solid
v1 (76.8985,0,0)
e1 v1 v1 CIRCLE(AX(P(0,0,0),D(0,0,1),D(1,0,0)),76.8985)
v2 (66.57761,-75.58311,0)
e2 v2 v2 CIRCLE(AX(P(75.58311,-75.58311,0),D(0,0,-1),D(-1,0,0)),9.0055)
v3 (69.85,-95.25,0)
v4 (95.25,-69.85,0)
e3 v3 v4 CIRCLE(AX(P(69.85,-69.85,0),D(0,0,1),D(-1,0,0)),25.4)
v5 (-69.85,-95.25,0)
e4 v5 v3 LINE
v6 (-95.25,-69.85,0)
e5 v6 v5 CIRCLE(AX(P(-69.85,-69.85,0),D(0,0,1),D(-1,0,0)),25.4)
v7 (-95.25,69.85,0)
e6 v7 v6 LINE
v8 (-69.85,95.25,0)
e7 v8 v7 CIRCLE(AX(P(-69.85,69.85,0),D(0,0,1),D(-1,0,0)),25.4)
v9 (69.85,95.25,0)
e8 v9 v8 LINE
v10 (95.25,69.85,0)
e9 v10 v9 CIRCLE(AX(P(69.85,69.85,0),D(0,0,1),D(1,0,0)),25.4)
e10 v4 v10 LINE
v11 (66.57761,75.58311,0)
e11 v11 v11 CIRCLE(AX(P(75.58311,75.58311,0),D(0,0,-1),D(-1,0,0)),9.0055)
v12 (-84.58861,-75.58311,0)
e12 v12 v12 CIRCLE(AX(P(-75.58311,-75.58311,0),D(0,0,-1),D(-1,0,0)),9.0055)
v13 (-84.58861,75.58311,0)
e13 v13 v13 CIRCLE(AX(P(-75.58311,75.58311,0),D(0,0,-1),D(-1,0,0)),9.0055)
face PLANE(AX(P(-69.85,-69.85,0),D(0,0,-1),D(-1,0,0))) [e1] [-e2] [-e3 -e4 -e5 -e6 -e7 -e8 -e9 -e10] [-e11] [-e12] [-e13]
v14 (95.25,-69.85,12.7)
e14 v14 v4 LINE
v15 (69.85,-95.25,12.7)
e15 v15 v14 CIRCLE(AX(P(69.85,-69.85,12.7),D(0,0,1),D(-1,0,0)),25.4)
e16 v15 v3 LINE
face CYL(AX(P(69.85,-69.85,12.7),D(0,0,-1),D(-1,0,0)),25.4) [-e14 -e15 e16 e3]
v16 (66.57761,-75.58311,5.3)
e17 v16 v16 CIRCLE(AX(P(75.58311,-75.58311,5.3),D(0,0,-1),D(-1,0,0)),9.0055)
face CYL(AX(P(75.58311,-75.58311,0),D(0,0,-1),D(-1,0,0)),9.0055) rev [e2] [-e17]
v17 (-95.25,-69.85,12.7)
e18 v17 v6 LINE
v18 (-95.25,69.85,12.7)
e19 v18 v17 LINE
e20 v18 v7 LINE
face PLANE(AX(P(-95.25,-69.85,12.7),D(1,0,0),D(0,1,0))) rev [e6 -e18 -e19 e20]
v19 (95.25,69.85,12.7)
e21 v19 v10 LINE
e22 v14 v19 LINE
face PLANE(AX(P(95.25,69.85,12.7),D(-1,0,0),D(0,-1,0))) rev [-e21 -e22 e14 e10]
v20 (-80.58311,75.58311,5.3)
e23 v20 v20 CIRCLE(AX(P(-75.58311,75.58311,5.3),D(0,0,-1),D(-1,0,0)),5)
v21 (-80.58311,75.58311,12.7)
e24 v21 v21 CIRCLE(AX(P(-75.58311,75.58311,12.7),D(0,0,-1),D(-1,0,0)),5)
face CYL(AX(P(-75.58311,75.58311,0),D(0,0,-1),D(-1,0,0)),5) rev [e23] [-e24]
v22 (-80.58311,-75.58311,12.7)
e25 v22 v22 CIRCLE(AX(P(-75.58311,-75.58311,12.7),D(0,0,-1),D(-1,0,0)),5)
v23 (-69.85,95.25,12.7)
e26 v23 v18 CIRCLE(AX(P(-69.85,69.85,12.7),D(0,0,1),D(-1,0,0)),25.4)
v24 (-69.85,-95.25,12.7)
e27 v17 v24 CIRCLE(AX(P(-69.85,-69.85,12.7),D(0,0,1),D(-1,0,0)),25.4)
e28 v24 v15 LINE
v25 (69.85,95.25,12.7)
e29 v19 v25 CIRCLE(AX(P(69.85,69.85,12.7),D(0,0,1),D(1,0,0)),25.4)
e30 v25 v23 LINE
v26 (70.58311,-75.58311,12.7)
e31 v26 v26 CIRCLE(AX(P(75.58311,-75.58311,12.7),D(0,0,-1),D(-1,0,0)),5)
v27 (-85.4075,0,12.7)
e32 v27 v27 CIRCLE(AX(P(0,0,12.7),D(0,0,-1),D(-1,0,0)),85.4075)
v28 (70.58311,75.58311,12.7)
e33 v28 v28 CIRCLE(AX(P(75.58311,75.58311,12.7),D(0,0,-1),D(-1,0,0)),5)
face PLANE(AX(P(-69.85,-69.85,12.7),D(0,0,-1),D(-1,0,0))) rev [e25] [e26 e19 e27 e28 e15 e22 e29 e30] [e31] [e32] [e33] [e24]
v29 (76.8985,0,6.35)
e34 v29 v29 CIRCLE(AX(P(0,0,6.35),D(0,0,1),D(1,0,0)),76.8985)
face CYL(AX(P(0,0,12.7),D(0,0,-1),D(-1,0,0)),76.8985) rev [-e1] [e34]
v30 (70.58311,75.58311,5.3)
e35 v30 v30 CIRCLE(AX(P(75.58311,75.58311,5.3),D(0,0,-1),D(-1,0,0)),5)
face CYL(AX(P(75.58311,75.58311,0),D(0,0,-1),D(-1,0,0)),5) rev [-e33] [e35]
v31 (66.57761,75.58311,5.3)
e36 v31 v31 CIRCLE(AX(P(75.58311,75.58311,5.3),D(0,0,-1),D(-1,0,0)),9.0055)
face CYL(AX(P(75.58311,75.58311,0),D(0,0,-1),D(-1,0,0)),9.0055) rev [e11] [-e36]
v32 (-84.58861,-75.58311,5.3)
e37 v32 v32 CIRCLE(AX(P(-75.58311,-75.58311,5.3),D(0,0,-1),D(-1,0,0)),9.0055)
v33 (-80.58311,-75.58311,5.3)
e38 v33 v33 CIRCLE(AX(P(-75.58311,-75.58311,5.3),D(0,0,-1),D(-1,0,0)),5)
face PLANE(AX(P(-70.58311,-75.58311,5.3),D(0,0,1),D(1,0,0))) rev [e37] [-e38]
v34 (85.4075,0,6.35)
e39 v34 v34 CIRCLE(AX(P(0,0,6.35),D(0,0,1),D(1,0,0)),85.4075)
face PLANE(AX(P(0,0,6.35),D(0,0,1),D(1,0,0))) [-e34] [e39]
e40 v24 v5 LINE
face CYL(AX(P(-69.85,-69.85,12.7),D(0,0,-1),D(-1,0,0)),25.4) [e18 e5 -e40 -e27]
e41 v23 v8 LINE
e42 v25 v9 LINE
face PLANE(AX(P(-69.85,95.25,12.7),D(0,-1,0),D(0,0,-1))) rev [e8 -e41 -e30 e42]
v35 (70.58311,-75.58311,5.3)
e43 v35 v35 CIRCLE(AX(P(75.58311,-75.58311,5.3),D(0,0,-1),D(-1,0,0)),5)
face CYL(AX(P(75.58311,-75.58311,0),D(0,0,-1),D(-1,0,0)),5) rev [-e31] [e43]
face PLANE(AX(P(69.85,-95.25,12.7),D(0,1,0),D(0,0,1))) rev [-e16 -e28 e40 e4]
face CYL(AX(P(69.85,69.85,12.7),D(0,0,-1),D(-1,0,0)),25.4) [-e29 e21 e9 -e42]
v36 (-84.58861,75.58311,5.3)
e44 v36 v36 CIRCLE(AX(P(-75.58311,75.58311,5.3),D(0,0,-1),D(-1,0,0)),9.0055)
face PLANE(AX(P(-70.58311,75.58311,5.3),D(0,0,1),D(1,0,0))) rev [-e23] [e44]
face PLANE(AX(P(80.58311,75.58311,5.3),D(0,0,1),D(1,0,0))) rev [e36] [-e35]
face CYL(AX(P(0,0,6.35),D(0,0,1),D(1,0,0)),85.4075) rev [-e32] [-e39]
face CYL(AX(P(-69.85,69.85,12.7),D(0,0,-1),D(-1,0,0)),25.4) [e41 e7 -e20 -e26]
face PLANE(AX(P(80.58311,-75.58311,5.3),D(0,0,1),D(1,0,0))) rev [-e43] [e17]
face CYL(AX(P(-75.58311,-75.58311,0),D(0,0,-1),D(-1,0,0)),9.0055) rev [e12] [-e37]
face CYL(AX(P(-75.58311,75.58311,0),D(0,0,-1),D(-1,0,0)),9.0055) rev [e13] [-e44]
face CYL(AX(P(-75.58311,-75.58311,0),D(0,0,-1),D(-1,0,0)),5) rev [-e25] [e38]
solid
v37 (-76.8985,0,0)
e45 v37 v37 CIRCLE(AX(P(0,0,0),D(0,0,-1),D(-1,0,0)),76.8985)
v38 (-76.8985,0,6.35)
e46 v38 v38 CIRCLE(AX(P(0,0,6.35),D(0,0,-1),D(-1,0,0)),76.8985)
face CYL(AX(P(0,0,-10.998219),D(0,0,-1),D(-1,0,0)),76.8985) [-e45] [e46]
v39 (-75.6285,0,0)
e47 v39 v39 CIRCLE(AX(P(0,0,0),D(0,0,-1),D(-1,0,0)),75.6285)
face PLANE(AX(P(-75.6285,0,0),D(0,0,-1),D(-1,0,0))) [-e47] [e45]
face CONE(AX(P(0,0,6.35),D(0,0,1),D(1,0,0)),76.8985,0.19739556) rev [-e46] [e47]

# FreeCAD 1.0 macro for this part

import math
import FreeCAD as App
import Part
import Sketcher
from FreeCAD import Vector
Q = App.Units.Quantity

doc = App.newDocument("Part")
body = doc.addObject("PartDesign::Body", "Body")

# Sketch on XY plane
sketch1 = body.newObject("Sketcher::SketchObject", "Sketch")
sketch1.AttachmentSupport = (doc.getObject("XY_Plane"), [""])
sketch1.MapMode = "FlatFace"
sketch1.addGeometry(Part.LineSegment(Vector(95.25, -69.85, 0), Vector(95.25, 69.85, 0)), False)
sketch1.addGeometry(Part.ArcOfCircle(Part.Circle(Vector(69.85, 69.85, 0), Vector(0, 0, 1), 25.4), math.radians(0), math.radians(90)), False)
sketch1.addGeometry(Part.LineSegment(Vector(69.85, 95.25, 0), Vector(-69.85, 95.25, 0)), False)
sketch1.addGeometry(Part.ArcOfCircle(Part.Circle(Vector(-69.85, 69.85, 0), Vector(0, 0, 1), 25.4), math.radians(90), math.radians(180)), False)
sketch1.addGeometry(Part.LineSegment(Vector(-95.25, 69.85, 0), Vector(-95.25, -69.85, 0)), False)
sketch1.addGeometry(Part.ArcOfCircle(Part.Circle(Vector(-69.85, -69.85, 0), Vector(0, 0, 1), 25.4), math.radians(180), math.radians(270)), False)
sketch1.addGeometry(Part.LineSegment(Vector(-69.85, -95.25, 0), Vector(69.85, -95.25, 0)), False)
sketch1.addGeometry(Part.ArcOfCircle(Part.Circle(Vector(69.85, -69.85, 0), Vector(0, 0, 1), 25.4), math.radians(-90), math.radians(0)), False)
sketch1.addGeometry(Part.Circle(Vector(0, 0, 0), Vector(0, 0, 1), 76.8985), False)
sketch1.addConstraint(Sketcher.Constraint("Tangent", 0, 2, 1, 1))
sketch1.addConstraint(Sketcher.Constraint("Tangent", 1, 2, 2, 1))
sketch1.addConstraint(Sketcher.Constraint("Tangent", 2, 2, 3, 1))
sketch1.addConstraint(Sketcher.Constraint("Tangent", 3, 2, 4, 1))
sketch1.addConstraint(Sketcher.Constraint("Tangent", 4, 2, 5, 1))
sketch1.addConstraint(Sketcher.Constraint("Tangent", 5, 2, 6, 1))
sketch1.addConstraint(Sketcher.Constraint("Tangent", 6, 2, 7, 1))
sketch1.addConstraint(Sketcher.Constraint("Tangent", 7, 2, 0, 1))
sketch1.addConstraint(Sketcher.Constraint("Vertical", 0))
sketch1.addConstraint(Sketcher.Constraint("Horizontal", 2))
sketch1.addConstraint(Sketcher.Constraint("Vertical", 4))
sketch1.addConstraint(Sketcher.Constraint("Horizontal", 6))
sketch1.addConstraint(Sketcher.Constraint("Coincident", 8, 3, -1, 1))
sketch1.addConstraint(Sketcher.Constraint("Equal", 1, 3))
sketch1.addConstraint(Sketcher.Constraint("Equal", 3, 5))
sketch1.addConstraint(Sketcher.Constraint("Equal", 5, 7))
sketch1.addConstraint(Sketcher.Constraint("Symmetric", 1, 3, 5, 3, -1, 1))
sketch1.addConstraint(Sketcher.Constraint("Equal", 6, 0))
sketch1.addConstraint(Sketcher.Constraint("Radius", 1, Q("1 in")))
sketch1.addConstraint(Sketcher.Constraint("Diameter", 8, Q("6.055 in")))
sketch1.addConstraint(Sketcher.Constraint("DistanceX", 2, 2, 2, 1, Q("5.5 in")))
pad1 = body.newObject("PartDesign::Pad", "Pad")
pad1.Profile = sketch1
pad1.Length = Q("0.5 in")

# Sketch on XY plane
sketch2 = body.newObject("Sketcher::SketchObject", "Sketch001")
sketch2.AttachmentSupport = (doc.getObject("XY_Plane"), [""])
sketch2.MapMode = "FlatFace"
sketch2.AttachmentOffset = App.Placement(Vector(0, 0, 1 * 25.4), App.Rotation())
sketch2.addGeometry(Part.Circle(Vector(0, 0, 0), Vector(0, 0, 1), 85.4075), False)
sketch2.addGeometry(Part.Circle(Vector(0, 0, 0), Vector(0, 0, 1), 76.2), False)
sketch2.addConstraint(Sketcher.Constraint("Coincident", 0, 3, -1, 1))
sketch2.addConstraint(Sketcher.Constraint("Coincident", 1, 3, -1, 1))
sketch2.addConstraint(Sketcher.Constraint("Diameter", 1, Q("6 in")))
sketch2.addConstraint(Sketcher.Constraint("Diameter", 0, Q("6.725 in")))
pocket1 = body.newObject("PartDesign::Pocket", "Pocket")
pocket1.Profile = sketch2
pocket1.Length = Q("0.75 in")

# Sketch on YZ plane
sketch3 = body.newObject("Sketcher::SketchObject", "Sketch002")
sketch3.AttachmentSupport = (doc.getObject("YZ_Plane"), [""])
sketch3.MapMode = "FlatFace"
sketch3.AttachmentOffset = App.Placement(Vector(0, 0, -75.58311), App.Rotation())
sketch3.addGeometry(Part.LineSegment(Vector(-75.58311, 12.7, 0), Vector(-75.58311, 0, 0)), False)
sketch3.addGeometry(Part.LineSegment(Vector(-75.58311, 0, 0), Vector(-66.57761, 0, 0)), False)
sketch3.addGeometry(Part.LineSegment(Vector(-66.57761, 0, 0), Vector(-66.57761, 5.3, 0)), False)
sketch3.addGeometry(Part.LineSegment(Vector(-66.57761, 5.3, 0), Vector(-70.58311, 5.3, 0)), False)
sketch3.addGeometry(Part.LineSegment(Vector(-70.58311, 5.3, 0), Vector(-70.58311, 12.7, 0)), False)
sketch3.addGeometry(Part.LineSegment(Vector(-70.58311, 12.7, 0), Vector(-75.58311, 12.7, 0)), False)
sketch3.addGeometry(Part.LineSegment(Vector(-75.58311, 0, 0), Vector(-75.58311, 12.7, 0)), True)  # axis
sketch3.addConstraint(Sketcher.Constraint("Coincident", 0, 2, 1, 1))
sketch3.addConstraint(Sketcher.Constraint("Coincident", 1, 2, 2, 1))
sketch3.addConstraint(Sketcher.Constraint("Coincident", 2, 2, 3, 1))
sketch3.addConstraint(Sketcher.Constraint("Coincident", 3, 2, 4, 1))
sketch3.addConstraint(Sketcher.Constraint("Coincident", 4, 2, 5, 1))
sketch3.addConstraint(Sketcher.Constraint("Coincident", 5, 2, 0, 1))
sketch3.addConstraint(Sketcher.Constraint("Vertical", 0))
sketch3.addConstraint(Sketcher.Constraint("Horizontal", 1))
sketch3.addConstraint(Sketcher.Constraint("Vertical", 2))
sketch3.addConstraint(Sketcher.Constraint("Horizontal", 3))
sketch3.addConstraint(Sketcher.Constraint("Vertical", 4))
sketch3.addConstraint(Sketcher.Constraint("Horizontal", 5))
sketch3.addConstraint(Sketcher.Constraint("Vertical", 6))
sketch3.addConstraint(Sketcher.Constraint("Coincident", 6, 1, 0, 2))
sketch3.addConstraint(Sketcher.Constraint("PointOnObject", 0, 2, -1))
sketch3.addConstraint(Sketcher.Constraint("Horizontal", 4, 2, 6, 2))
sketch3.addConstraint(Sketcher.Constraint("DistanceY", 0, 2, 0, 1, Q("0.5 in")))
sketch3.addConstraint(Sketcher.Constraint("DistanceX", 1, 1, 1, 2, 9.0055))
sketch3.addConstraint(Sketcher.Constraint("DistanceX", 3, 2, 3, 1, 4.0055))
sketch3.addConstraint(Sketcher.Constraint("DistanceY", 2, 1, 2, 2, 5.3))
sketch3.addConstraint(Sketcher.Constraint("DistanceX", 0, 2, -1, 1, 75.58311))
groove = body.newObject("PartDesign::Groove", "Groove")
groove.Profile = sketch3
groove.ReferenceAxis = (sketch3, ["Axis0"])
groove.Angle = 360
doc.recompute()

datumline = body.newObject("PartDesign::Line", "DatumLine")
datumline.Placement = App.Placement(Vector(0, 0, 0), App.Rotation(Vector(0, 0, 1), Vector(0.707106781, 0.707106781, 0)))
linearpattern = body.newObject("PartDesign::LinearPattern", "LinearPattern")
linearpattern.Originals = [groove]
linearpattern.Direction = (datumline, [""])
linearpattern.Mode = "offset"
linearpattern.Offset = 213.781317
linearpattern.Occurrences = 2
body.Tip = linearpattern
doc.recompute()

linearpattern2 = body.newObject("PartDesign::LinearPattern", "LinearPattern001")
linearpattern2.Originals = [groove]
linearpattern2.Direction = (doc.getObject("Y_Axis"), [""])
linearpattern2.Mode = "offset"
linearpattern2.Offset = 151.166219
linearpattern2.Occurrences = 2
body.Tip = linearpattern2
doc.recompute()

linearpattern3 = body.newObject("PartDesign::LinearPattern", "LinearPattern002")
linearpattern3.Originals = [groove]
linearpattern3.Direction = (doc.getObject("X_Axis"), [""])
linearpattern3.Mode = "offset"
linearpattern3.Offset = 151.166219
linearpattern3.Occurrences = 2
body.Tip = linearpattern3
body2 = doc.addObject("PartDesign::Body", "Body001")

# Sketch on XZ plane
sketch4 = body2.newObject("Sketcher::SketchObject", "Sketch003")
sketch4.AttachmentSupport = (doc.getObject("XZ_Plane001"), [""])
sketch4.MapMode = "FlatFace"
sketch4.addGeometry(Part.LineSegment(Vector(-76.8985, 0, 0), Vector(-76.8985, 6.35, 0)), False)
sketch4.addGeometry(Part.LineSegment(Vector(-76.8985, 6.35, 0), Vector(-75.6285, 0, 0)), False)
sketch4.addGeometry(Part.LineSegment(Vector(-75.6285, 0, 0), Vector(-76.8985, 0, 0)), False)
sketch4.addConstraint(Sketcher.Constraint("Coincident", 0, 2, 1, 1))
sketch4.addConstraint(Sketcher.Constraint("Coincident", 1, 2, 2, 1))
sketch4.addConstraint(Sketcher.Constraint("Coincident", 2, 2, 0, 1))
sketch4.addConstraint(Sketcher.Constraint("Vertical", 0))
sketch4.addConstraint(Sketcher.Constraint("Horizontal", 2))
sketch4.addConstraint(Sketcher.Constraint("PointOnObject", 1, 2, -1))
sketch4.addConstraint(Sketcher.Constraint("DistanceX", 2, 2, 2, 1, Q("0.05 in")))
sketch4.addConstraint(Sketcher.Constraint("DistanceY", 0, 1, 0, 2, Q("0.25 in")))
sketch4.addConstraint(Sketcher.Constraint("DistanceX", 0, 2, -1, 1, Q("3.0275 in")))
revolution = body2.newObject("PartDesign::Revolution", "Revolution")
revolution.Profile = sketch4
revolution.ReferenceAxis = (sketch4, ["V_Axis"])
revolution.Angle = 360

doc.recompute()
